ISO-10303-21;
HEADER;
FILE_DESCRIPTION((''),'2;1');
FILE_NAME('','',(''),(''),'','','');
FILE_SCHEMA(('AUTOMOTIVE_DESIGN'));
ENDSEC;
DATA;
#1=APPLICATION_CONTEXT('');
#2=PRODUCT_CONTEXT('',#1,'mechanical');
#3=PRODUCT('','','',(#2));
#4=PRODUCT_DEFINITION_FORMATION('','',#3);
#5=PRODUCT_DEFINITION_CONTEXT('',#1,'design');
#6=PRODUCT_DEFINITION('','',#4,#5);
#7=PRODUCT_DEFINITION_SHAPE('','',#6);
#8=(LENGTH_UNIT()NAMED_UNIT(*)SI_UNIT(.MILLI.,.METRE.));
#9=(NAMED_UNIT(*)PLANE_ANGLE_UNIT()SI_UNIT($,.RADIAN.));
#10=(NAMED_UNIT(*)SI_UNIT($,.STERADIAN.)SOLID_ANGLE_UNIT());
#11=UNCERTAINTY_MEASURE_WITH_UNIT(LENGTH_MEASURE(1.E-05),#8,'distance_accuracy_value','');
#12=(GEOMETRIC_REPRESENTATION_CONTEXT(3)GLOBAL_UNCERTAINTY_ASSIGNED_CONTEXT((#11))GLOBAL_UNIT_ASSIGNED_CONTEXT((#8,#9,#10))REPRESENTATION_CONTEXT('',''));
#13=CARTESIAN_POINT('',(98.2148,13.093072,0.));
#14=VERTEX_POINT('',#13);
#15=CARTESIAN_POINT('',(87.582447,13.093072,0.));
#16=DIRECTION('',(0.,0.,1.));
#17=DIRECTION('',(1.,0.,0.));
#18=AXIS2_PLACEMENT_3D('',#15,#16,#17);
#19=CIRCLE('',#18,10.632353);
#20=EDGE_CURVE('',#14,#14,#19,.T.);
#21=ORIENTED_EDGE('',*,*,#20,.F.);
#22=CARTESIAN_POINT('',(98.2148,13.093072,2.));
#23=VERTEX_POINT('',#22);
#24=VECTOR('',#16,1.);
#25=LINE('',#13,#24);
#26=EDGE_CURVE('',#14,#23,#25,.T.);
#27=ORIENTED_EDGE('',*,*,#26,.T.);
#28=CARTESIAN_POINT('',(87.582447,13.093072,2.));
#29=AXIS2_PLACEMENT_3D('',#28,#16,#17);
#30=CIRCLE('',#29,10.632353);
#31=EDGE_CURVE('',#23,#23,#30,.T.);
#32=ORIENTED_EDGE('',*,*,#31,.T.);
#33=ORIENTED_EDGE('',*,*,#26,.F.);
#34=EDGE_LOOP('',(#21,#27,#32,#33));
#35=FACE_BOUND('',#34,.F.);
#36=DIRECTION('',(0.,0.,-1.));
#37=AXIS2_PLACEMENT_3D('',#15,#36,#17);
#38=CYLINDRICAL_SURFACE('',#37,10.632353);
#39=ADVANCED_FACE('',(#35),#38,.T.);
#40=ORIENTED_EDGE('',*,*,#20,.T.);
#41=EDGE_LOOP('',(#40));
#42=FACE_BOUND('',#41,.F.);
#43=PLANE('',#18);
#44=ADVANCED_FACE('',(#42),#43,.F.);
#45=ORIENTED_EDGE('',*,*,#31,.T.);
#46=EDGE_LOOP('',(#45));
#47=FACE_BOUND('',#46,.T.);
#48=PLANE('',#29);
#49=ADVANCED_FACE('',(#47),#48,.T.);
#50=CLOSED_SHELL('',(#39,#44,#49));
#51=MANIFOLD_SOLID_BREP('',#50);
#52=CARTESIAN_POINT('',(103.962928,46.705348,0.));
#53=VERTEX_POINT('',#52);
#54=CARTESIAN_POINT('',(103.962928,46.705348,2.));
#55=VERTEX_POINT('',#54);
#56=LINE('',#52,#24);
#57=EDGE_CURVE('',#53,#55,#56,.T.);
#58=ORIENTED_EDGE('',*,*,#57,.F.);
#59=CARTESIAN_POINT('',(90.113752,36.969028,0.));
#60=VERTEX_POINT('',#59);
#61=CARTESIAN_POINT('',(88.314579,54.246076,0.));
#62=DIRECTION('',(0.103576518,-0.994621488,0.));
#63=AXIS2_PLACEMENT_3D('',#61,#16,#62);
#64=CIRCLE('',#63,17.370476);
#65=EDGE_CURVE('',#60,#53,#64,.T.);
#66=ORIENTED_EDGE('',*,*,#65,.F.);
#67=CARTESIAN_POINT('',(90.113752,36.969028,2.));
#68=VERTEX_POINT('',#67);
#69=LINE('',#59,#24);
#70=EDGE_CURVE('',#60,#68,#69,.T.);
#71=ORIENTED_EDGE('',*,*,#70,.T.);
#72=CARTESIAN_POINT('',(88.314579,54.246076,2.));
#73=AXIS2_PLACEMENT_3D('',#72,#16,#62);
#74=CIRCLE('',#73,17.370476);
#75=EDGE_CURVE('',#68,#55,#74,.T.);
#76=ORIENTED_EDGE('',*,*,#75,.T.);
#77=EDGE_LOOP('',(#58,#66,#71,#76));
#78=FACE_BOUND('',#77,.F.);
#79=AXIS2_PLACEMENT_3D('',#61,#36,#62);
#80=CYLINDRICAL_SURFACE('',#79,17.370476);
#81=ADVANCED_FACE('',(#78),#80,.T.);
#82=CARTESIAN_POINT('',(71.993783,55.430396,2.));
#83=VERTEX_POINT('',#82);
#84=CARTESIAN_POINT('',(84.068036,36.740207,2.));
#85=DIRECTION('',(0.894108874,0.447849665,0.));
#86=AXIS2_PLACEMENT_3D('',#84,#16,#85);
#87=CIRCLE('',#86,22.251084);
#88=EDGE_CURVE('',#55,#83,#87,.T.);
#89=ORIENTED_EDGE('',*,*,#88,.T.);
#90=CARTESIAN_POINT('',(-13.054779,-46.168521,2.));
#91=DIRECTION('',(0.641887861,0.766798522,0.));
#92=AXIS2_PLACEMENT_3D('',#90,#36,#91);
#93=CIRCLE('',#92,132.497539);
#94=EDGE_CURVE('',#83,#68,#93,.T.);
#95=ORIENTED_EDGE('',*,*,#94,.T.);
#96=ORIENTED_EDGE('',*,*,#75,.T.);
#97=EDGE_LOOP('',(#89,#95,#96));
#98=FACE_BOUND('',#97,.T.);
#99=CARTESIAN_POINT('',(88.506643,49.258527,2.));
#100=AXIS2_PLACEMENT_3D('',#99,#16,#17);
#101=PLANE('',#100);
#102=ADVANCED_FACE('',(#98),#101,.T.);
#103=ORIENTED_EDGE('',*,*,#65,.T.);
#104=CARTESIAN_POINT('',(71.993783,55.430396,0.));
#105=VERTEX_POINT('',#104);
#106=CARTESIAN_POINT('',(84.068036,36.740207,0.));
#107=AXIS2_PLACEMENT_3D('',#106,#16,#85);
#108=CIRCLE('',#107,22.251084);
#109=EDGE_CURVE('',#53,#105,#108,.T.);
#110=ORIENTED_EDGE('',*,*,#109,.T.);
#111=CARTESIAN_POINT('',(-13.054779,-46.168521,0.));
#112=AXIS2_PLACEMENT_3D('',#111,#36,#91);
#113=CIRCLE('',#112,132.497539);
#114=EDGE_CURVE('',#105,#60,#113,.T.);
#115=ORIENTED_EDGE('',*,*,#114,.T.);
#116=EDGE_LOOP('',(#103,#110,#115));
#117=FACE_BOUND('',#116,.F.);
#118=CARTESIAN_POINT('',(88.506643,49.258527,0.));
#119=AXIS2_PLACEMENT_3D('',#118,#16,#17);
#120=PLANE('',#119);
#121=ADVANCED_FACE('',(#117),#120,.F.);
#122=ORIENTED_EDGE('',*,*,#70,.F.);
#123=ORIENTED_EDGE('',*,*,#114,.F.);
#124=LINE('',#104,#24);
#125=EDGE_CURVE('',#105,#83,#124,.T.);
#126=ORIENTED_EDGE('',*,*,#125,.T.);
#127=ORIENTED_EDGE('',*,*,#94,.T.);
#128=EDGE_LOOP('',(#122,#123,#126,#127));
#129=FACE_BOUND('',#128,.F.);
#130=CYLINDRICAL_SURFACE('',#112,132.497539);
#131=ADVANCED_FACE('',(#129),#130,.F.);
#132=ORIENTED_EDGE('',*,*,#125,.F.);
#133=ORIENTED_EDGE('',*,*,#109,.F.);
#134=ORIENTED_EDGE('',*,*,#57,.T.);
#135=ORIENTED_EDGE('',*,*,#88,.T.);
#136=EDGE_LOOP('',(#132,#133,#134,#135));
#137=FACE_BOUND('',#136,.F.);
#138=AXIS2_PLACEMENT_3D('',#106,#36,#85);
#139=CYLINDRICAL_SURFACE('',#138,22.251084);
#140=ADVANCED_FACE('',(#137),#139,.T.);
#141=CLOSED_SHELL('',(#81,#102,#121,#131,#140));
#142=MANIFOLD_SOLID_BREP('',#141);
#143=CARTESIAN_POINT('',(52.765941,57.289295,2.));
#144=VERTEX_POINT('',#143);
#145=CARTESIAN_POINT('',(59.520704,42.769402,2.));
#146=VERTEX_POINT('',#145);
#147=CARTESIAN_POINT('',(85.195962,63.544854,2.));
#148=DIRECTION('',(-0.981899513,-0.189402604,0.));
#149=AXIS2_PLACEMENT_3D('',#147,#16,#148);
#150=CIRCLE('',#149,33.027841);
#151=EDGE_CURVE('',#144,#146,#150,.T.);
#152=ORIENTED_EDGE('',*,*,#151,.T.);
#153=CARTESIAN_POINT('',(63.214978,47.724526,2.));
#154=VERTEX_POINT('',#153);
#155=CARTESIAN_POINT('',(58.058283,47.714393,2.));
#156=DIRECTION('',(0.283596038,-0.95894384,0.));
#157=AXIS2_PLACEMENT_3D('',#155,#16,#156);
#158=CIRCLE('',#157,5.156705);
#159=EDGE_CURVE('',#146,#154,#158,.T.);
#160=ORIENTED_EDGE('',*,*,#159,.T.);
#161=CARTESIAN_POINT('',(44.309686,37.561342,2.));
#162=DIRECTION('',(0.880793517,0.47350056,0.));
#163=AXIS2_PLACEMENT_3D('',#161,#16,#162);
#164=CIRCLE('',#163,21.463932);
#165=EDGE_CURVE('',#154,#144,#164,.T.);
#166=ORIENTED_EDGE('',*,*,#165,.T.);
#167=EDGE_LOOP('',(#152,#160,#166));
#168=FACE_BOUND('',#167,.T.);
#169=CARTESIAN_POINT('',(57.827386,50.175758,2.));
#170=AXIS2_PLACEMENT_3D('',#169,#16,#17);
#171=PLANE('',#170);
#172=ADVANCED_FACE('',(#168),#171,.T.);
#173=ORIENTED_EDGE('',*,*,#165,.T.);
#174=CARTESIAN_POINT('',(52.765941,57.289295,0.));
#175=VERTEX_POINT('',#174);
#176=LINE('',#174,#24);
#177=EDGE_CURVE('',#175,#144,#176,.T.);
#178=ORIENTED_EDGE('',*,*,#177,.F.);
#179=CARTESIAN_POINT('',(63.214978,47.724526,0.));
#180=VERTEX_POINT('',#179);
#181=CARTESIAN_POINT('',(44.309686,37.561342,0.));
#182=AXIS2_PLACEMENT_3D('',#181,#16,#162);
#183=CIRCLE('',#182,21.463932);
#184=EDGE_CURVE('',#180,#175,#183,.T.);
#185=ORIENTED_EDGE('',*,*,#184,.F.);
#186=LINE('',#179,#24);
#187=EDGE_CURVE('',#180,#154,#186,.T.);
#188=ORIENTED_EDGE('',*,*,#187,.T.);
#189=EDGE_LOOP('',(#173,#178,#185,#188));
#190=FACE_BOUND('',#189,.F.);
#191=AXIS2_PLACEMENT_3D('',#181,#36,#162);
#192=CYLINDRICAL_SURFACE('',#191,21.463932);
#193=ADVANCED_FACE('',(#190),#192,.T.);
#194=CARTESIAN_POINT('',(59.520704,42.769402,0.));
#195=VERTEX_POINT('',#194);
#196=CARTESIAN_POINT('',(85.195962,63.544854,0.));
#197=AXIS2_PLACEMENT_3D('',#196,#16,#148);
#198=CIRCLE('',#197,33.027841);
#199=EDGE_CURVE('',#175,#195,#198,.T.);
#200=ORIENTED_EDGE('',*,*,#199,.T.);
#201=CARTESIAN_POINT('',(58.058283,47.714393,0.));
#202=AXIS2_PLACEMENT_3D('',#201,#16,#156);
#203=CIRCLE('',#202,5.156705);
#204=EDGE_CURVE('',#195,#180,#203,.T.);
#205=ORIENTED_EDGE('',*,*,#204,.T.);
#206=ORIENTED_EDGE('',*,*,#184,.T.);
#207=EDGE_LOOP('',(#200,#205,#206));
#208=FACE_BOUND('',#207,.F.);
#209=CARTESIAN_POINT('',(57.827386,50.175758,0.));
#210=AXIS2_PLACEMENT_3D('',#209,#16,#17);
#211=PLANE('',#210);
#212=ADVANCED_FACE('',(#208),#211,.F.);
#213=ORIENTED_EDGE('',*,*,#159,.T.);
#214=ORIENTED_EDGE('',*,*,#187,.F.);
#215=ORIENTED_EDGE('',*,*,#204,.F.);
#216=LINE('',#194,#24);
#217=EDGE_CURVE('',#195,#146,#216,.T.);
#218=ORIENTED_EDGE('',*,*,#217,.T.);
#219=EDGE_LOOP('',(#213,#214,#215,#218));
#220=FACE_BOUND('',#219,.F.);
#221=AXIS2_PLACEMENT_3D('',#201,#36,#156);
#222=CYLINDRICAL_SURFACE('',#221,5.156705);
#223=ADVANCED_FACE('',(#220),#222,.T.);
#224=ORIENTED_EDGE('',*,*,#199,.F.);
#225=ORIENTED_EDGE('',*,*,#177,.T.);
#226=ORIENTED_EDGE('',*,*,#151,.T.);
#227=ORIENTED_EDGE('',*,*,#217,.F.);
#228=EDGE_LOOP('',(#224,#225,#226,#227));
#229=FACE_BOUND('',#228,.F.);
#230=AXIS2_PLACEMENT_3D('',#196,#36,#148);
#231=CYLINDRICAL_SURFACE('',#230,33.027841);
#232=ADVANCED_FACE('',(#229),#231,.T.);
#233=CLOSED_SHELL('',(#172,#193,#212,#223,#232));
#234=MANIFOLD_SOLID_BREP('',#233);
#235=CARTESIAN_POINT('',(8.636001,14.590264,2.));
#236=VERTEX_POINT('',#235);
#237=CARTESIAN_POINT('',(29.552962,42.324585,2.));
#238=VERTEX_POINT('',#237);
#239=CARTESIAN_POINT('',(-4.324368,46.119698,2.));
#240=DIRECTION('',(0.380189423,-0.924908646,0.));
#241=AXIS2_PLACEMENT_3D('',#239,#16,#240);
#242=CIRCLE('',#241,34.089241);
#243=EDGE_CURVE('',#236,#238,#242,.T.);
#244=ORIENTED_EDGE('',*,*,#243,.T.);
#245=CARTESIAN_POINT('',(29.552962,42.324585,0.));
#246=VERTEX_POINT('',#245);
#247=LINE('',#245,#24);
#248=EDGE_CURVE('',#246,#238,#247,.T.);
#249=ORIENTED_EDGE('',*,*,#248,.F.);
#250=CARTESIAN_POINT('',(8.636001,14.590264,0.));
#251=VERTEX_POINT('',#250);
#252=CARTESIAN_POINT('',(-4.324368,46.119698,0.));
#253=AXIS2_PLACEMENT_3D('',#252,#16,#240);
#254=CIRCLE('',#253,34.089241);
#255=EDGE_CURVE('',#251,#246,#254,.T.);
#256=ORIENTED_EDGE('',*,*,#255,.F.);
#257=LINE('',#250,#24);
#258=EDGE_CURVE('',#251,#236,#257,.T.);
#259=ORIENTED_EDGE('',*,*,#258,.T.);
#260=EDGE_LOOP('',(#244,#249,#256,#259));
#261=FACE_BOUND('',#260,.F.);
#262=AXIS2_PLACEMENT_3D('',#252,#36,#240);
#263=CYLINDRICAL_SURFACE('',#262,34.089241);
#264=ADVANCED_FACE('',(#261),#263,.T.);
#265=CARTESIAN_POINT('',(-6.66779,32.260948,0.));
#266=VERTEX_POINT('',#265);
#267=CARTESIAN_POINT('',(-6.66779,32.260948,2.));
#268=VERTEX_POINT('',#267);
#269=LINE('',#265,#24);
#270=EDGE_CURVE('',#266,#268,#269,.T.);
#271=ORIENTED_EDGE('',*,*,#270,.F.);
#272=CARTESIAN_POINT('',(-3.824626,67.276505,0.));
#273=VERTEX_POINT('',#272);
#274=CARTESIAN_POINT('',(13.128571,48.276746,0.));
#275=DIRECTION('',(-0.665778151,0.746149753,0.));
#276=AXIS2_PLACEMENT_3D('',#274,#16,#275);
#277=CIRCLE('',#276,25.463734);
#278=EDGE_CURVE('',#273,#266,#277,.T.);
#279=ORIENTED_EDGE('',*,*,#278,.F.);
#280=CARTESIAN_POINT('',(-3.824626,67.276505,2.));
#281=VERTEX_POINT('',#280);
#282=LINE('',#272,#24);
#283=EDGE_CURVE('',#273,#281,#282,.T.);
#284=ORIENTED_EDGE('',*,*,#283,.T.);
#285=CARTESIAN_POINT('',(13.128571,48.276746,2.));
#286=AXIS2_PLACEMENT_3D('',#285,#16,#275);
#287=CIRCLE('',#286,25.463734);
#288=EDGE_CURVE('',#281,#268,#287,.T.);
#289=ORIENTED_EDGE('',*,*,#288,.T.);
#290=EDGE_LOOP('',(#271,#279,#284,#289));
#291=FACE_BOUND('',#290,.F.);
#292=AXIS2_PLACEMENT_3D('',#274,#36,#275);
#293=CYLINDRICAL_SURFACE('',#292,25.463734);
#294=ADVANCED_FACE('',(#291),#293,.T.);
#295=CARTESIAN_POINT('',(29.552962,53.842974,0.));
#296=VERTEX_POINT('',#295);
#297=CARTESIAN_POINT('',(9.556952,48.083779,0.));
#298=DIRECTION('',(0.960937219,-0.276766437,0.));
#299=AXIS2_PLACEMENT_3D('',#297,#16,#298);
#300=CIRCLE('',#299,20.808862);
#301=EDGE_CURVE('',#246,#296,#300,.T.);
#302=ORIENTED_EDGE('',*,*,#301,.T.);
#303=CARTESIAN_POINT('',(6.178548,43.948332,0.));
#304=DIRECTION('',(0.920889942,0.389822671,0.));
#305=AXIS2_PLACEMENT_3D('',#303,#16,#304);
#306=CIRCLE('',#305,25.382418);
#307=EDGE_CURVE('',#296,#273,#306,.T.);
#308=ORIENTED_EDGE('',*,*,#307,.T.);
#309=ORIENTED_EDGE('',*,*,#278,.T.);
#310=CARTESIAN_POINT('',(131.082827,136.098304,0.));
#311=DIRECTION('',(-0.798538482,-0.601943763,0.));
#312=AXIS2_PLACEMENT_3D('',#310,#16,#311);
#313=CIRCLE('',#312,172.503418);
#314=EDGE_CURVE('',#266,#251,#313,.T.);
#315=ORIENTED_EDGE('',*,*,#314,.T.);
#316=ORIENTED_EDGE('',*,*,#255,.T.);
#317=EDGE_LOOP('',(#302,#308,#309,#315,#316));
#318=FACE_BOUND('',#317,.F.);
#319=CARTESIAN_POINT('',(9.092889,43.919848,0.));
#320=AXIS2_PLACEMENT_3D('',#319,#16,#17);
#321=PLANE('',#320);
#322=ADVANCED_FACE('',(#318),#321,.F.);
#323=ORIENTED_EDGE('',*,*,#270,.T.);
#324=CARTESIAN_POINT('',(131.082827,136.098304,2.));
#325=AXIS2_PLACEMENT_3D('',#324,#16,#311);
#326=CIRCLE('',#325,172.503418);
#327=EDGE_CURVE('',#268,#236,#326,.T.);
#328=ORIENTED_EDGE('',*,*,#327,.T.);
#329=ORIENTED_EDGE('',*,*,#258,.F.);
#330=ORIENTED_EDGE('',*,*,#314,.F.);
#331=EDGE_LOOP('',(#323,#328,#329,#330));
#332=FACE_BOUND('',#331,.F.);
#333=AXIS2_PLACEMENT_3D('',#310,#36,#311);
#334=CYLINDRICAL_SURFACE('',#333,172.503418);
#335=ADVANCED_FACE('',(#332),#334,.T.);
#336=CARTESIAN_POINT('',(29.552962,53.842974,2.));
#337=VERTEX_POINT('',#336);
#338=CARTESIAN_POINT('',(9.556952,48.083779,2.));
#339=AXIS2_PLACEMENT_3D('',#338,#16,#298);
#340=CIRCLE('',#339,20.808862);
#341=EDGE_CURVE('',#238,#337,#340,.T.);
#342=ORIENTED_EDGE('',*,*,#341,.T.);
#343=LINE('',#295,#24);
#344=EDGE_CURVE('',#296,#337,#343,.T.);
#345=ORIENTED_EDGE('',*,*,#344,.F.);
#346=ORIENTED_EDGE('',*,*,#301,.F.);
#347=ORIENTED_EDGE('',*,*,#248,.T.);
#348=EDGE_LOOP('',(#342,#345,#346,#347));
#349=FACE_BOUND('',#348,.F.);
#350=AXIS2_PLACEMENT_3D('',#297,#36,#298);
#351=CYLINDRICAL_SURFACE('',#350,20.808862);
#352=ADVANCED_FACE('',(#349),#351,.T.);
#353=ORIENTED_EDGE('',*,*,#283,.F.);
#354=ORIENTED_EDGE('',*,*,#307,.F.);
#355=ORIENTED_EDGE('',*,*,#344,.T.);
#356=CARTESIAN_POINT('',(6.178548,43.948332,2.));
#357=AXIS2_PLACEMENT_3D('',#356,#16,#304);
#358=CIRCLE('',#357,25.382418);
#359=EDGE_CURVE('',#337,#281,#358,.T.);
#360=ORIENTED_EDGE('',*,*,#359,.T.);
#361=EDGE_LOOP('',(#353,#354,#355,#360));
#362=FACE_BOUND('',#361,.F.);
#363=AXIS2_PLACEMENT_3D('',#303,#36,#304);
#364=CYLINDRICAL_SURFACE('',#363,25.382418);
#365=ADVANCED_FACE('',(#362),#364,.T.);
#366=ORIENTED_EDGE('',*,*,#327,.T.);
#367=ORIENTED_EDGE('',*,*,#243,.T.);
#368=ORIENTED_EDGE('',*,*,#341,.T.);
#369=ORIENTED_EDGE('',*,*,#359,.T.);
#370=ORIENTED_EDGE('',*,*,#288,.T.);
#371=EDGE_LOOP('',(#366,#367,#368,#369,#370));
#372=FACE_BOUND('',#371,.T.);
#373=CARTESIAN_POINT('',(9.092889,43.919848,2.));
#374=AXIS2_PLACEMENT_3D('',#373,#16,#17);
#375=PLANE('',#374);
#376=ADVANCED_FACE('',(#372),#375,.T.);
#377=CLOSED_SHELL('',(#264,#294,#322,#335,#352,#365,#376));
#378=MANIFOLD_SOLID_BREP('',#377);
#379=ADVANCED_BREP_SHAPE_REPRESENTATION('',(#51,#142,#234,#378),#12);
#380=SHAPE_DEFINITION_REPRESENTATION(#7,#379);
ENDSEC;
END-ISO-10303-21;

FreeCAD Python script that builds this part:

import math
import FreeCAD as App
import Part
import Sketcher
from FreeCAD import Vector

doc = App.newDocument("Part")
body = doc.addObject("PartDesign::Body", "Body")
body.AllowCompound = True

sketch1 = body.newObject("Sketcher::SketchObject", "Sketch")
sketch1.AttachmentSupport = (doc.getObject("XY_Plane"), [""])
sketch1.MapMode = "FlatFace"
sketch1.addGeometry(Part.ArcOfCircle(Part.Circle(Vector(6, 44, 0), Vector(0, 0, 1), 25), math.radians(23), math.radians(113)), False)
sketch1.addGeometry(Part.ArcOfCircle(Part.Circle(Vector(13, 48, 0), Vector(0, 0, 1), 25), math.radians(132), math.radians(219)), False)
sketch1.addGeometry(Part.ArcOfCircle(Part.Circle(Vector(131, 136, 0), Vector(0, 0, 1), 173), math.radians(-142.99), math.radians(-135.22)), False)
sketch1.addGeometry(Part.ArcOfCircle(Part.Circle(Vector(-4, 46, 0), Vector(0, 0, 1), 34), math.radians(-68), math.radians(-6)), False)
sketch1.addGeometry(Part.ArcOfCircle(Part.Circle(Vector(10, 48, 0), Vector(0, 0, 1), 21), math.radians(-16), math.radians(16)), False)
sketch1.addGeometry(Part.ArcOfCircle(Part.Circle(Vector(88, 54, 0), Vector(0, 0, 1), 17), math.radians(-84), math.radians(-26)), False)
sketch1.addGeometry(Part.ArcOfCircle(Part.Circle(Vector(84, 37, 0), Vector(0, 0, 1), 22), math.radians(27), math.radians(123)), False)
sketch1.addGeometry(Part.ArcOfCircle(Part.Circle(Vector(-13, -46, 0), Vector(0, 0, 1), 132), math.radians(38.86), math.radians(50.07)), False)
sketch1.addGeometry(Part.Circle(Vector(88, 13, 0), Vector(0, 0, 1), 11), False)
sketch1.addGeometry(Part.ArcOfCircle(Part.Circle(Vector(44, 38, 0), Vector(0, 0, 1), 21), math.radians(28), math.radians(67)), False)
sketch1.addGeometry(Part.ArcOfCircle(Part.Circle(Vector(85, 64, 0), Vector(0, 0, 1), 33), math.radians(-169), math.radians(-141)), False)
sketch1.addGeometry(Part.ArcOfCircle(Part.Circle(Vector(58, 48, 0), Vector(0, 0, 1), 5), math.radians(-74), math.radians(0)), False)
sketch1.addConstraint(Sketcher.Constraint("Coincident", 0, 2, 1, 1))
sketch1.addConstraint(Sketcher.Constraint("Coincident", 1, 2, 2, 1))
sketch1.addConstraint(Sketcher.Constraint("Coincident", 2, 2, 3, 1))
sketch1.addConstraint(Sketcher.Constraint("Coincident", 3, 2, 4, 1))
sketch1.addConstraint(Sketcher.Constraint("Coincident", 4, 2, 0, 1))
sketch1.addConstraint(Sketcher.Constraint("Coincident", 5, 2, 6, 1))
sketch1.addConstraint(Sketcher.Constraint("Coincident", 6, 2, 7, 2))
sketch1.addConstraint(Sketcher.Constraint("Coincident", 7, 1, 5, 1))
sketch1.addConstraint(Sketcher.Constraint("Coincident", 9, 2, 10, 1))
sketch1.addConstraint(Sketcher.Constraint("Coincident", 10, 2, 11, 1))
sketch1.addConstraint(Sketcher.Constraint("Coincident", 11, 2, 9, 1))
sketch1.addConstraint(Sketcher.Constraint("Vertical", 3, 2, 4, 2))
sketch1.addConstraint(Sketcher.Constraint("Radius", 0, 25.382418))
sketch1.addConstraint(Sketcher.Constraint("Radius", 3, 34.089241))
sketch1.addConstraint(Sketcher.Constraint("Radius", 4, 20.808862))
sketch1.addConstraint(Sketcher.Constraint("Radius", 7, 132.497539))
sketch1.addConstraint(Sketcher.Constraint("Radius", 9, 21.463932))
sketch1.addConstraint(Sketcher.Constraint("Radius", 10, 33.027841))
sketch1.addConstraint(Sketcher.Constraint("Diameter", 8, 21.264706))
sketch1.addConstraint(Sketcher.Constraint("DistanceX", -1, 1, 2, 2, 8.636001))
sketch1.addConstraint(Sketcher.Constraint("Radius", 1, 25.463734))
sketch1.addConstraint(Sketcher.Constraint("Radius", 2, 172.503418))
sketch1.addConstraint(Sketcher.Constraint("Radius", 5, 17.370476))
sketch1.addConstraint(Sketcher.Constraint("Radius", 6, 22.251084))
sketch1.addConstraint(Sketcher.Constraint("Radius", 11, 5.156705))
sketch1.addConstraint(Sketcher.Constraint("DistanceY", -1, 1, 10, 2, 42.769402))
sketch1.addConstraint(Sketcher.Constraint("DistanceY", 7, 3, 4, 3, 94.252301))
sketch1.addConstraint(Sketcher.Constraint("DistanceX", 0, 3, 8, 3, 81.403899))
sketch1.addConstraint(Sketcher.Constraint("DistanceY", 1, 2, 1, 3, 16.015798))
sketch1.addConstraint(Sketcher.Constraint("DistanceX", 11, 3, 6, 2, 13.9355))
sketch1.addConstraint(Sketcher.Constraint("DistanceY", 6, 2, 9, 2, 1.858899))
sketch1.addConstraint(Sketcher.Constraint("DistanceX", -1, 1, 0, 3, 6.178548))
sketch1.addConstraint(Sketcher.Constraint("DistanceY", -1, 1, 0, 3, 43.948332))
sketch1.addConstraint(Sketcher.Constraint("DistanceX", -1, 1, 1, 3, 13.128571))
sketch1.addConstraint(Sketcher.Constraint("DistanceY", -1, 1, 4, 3, 48.083779))
sketch1.addConstraint(Sketcher.Constraint("DistanceX", -1, 1, 5, 3, 88.314579))
sketch1.addConstraint(Sketcher.Constraint("DistanceX", 7, 3, -1, 1, 13.054779))
sketch1.addConstraint(Sketcher.Constraint("DistanceY", -1, 1, 8, 3, 13.093072))
sketch1.addConstraint(Sketcher.Constraint("DistanceX", -1, 1, 4, 2, 29.552962))
sketch1.addConstraint(Sketcher.Constraint("DistanceY", -1, 1, 5, 2, 46.705348))
sketch1.addConstraint(Sketcher.Constraint("DistanceX", -1, 1, 7, 1, 90.113752))
sketch1.addConstraint(Sketcher.Constraint("DistanceX", -1, 1, 9, 2, 52.765941))
sketch1.addConstraint(Sketcher.Constraint("DistanceX", -1, 1, 11, 2, 63.214978))
sketch1.addConstraint(Sketcher.Constraint("DistanceX", 0, 3, 2, 3, 124.904279))
sketch1.addConstraint(Sketcher.Constraint("DistanceX", 3, 3, 1, 3, 17.452939))
sketch1.addConstraint(Sketcher.Constraint("DistanceY", 9, 3, 0, 3, 6.38699))
sketch1.addConstraint(Sketcher.Constraint("DistanceY", 9, 3, 10, 3, 25.983512))
pad1 = body.newObject("PartDesign::Pad", "Pad")
pad1.Profile = sketch1
pad1.Length = 2

doc.recompute()
